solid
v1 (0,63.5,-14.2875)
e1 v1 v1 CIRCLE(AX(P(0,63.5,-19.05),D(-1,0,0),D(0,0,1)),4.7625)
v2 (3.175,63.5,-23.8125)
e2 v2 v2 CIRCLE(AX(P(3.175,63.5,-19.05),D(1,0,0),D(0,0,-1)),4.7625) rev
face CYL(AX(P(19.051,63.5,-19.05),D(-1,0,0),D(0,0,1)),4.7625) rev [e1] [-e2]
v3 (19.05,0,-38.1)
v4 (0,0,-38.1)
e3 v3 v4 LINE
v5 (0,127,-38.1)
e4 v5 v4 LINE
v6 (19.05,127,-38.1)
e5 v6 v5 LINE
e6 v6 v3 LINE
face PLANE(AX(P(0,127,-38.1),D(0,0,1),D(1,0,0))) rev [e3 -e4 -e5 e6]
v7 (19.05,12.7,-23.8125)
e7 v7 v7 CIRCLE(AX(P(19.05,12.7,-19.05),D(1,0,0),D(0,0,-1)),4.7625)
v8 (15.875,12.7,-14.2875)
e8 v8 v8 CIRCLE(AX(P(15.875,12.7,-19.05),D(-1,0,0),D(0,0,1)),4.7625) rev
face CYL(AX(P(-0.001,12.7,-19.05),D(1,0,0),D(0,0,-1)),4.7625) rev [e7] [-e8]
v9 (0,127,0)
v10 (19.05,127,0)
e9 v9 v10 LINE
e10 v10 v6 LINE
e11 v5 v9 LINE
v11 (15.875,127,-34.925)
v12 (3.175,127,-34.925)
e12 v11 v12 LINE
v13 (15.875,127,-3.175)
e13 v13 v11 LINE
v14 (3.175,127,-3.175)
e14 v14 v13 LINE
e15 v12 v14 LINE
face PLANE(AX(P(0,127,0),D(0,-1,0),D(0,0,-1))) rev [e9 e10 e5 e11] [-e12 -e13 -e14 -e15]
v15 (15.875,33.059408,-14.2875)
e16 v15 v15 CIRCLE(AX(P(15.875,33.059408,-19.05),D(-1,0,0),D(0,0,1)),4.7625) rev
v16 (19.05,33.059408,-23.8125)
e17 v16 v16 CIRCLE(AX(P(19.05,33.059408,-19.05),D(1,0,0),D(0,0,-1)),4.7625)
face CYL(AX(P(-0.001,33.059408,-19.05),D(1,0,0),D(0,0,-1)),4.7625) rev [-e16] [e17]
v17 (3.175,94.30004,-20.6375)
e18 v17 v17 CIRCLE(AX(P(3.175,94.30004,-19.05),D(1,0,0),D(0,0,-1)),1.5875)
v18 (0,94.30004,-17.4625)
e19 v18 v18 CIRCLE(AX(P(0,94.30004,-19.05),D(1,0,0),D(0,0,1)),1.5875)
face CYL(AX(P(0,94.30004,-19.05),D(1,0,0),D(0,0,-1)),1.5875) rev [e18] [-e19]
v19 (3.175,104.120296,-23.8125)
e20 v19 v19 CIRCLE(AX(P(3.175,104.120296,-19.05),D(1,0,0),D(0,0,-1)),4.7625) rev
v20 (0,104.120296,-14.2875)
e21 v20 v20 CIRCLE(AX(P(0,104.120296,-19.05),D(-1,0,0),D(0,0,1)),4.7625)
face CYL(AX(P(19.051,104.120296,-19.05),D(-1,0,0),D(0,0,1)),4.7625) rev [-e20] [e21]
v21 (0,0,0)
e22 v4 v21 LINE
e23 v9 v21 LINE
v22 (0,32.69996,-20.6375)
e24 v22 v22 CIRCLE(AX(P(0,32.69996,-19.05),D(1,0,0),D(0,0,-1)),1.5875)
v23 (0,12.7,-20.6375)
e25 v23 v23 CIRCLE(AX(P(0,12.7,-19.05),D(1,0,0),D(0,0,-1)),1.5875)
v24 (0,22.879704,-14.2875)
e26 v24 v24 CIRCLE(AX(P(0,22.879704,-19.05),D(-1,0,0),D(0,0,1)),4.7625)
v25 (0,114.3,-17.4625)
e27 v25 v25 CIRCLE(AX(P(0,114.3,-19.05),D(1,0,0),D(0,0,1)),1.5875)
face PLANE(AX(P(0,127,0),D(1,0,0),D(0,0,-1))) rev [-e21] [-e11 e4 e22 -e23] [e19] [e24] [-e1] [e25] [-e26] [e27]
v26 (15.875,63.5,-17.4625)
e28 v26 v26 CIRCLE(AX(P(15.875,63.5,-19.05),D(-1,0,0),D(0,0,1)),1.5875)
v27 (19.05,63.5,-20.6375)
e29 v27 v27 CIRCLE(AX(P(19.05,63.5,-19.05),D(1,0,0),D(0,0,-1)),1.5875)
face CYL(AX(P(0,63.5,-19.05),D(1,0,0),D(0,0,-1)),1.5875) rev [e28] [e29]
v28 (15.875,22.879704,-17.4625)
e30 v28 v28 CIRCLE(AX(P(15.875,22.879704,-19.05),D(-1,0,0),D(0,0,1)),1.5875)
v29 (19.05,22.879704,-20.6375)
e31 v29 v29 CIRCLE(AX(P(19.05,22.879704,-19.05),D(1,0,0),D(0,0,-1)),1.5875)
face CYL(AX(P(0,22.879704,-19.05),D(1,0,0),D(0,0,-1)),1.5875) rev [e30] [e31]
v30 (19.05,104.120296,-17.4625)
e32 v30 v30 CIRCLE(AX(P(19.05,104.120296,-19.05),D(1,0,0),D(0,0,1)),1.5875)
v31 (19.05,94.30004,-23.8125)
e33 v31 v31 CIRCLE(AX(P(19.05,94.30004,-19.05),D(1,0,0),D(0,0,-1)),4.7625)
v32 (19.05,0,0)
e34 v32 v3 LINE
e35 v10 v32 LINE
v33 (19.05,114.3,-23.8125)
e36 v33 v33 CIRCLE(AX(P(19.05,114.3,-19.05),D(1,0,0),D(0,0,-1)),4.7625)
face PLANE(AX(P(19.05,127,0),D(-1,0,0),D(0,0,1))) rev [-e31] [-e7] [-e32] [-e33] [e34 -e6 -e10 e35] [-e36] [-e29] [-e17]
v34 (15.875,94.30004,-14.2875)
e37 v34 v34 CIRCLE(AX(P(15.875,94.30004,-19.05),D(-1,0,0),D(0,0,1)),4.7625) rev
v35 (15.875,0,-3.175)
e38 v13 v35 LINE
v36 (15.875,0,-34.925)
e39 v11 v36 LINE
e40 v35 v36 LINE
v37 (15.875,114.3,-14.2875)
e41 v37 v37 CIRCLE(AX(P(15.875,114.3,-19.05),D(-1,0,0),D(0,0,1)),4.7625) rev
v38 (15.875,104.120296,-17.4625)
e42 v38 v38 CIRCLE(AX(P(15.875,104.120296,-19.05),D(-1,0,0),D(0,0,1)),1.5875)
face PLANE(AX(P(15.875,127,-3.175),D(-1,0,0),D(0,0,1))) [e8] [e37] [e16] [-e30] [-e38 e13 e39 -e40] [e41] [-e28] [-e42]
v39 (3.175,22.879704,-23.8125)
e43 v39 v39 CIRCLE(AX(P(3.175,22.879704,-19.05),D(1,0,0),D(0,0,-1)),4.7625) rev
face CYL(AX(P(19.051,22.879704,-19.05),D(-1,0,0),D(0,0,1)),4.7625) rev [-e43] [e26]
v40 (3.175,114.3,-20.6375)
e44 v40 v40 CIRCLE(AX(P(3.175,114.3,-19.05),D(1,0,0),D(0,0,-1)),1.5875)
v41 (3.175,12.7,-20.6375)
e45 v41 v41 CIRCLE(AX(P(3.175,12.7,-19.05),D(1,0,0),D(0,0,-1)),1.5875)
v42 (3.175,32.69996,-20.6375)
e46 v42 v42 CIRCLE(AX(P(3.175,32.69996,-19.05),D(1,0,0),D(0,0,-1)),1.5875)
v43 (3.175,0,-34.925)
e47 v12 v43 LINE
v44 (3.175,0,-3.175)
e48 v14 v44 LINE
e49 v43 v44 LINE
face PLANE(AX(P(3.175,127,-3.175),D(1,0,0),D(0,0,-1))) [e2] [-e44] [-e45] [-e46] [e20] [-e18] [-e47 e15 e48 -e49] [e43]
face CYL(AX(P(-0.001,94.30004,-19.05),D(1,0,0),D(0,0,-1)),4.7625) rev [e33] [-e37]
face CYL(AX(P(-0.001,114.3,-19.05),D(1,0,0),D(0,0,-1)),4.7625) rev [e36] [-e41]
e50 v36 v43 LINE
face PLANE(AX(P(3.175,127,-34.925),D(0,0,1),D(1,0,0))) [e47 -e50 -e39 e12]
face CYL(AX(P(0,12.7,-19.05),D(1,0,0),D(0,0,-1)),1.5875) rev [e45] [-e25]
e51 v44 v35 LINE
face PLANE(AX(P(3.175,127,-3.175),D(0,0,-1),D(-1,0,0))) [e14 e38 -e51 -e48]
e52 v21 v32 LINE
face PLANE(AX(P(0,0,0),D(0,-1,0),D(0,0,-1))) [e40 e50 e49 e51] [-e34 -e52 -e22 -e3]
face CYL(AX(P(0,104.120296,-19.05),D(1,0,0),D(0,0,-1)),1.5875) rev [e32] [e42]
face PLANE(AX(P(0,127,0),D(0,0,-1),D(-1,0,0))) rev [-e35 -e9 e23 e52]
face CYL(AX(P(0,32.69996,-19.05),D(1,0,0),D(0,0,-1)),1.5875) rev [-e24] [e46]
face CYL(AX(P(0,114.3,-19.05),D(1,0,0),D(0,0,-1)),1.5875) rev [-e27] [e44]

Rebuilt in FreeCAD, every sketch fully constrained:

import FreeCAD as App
import Part
import Sketcher
Q = App.Units.Quantity

doc = App.newDocument("Part")
params = doc.addObject("Spreadsheet::Sheet", "Params")
for row, (alias, value) in enumerate([
    ("sketch1_width", "0.5 in"),
    ("sketch1_height", "1.5 in"),
    ("sketch1_width2", "0.75 in"),
    ("sketch1_height2", "1.25 in"),
    ("pad1_length", "5 in"),
    ("sketch2_diameter", "0.125 in"),
    ("sketch3_diameter", "0.375 in"),
    ("pocket2_length", "0.125 in"),
    ("sketch4_diameter", "0.375 in"),
    ("pocket3_length", "0.125 in"),
    ("sketch5_diameter", "0.375 in"),
    ("pocket4_length", "0.125 in"),
    ("sketch6_diameter", "0.375 in"),
    ("pocket5_length", "0.125 in"),
    ("sketch7_diameter", "0.125 in"),
    ("sketch8_diameter", "0.375 in"),
    ("pocket7_length", "0.125 in"),
    ("sketch9_diameter", "0.375 in"),
    ("pocket8_length", "0.125 in"),
    ("sketch10_diameter", "0.375 in"),
    ("pocket9_length", "0.125 in"),
], start=1):
    params.set(f"A{row}", alias)
    params.set(f"B{row}", "=" + value)
    params.setAlias(f"B{row}", alias)

body = doc.addObject("PartDesign::Body", "Body")

# Sketch on XZ plane
sketch1 = body.newObject("Sketcher::SketchObject", "Sketch")
sketch1.AttachmentSupport = (doc.getObject("XZ_Plane"), [""])
sketch1.MapMode = "FlatFace"
sketch1.addGeometry([
    Part.LineSegment(App.Vector(0, -38, 0), App.Vector(0, 0, 0)),  # 0
    Part.LineSegment(App.Vector(0, 0, 0), App.Vector(19, 0, 0)),  # 1
    Part.LineSegment(App.Vector(19, 0, 0), App.Vector(19, -38, 0)),  # 2
    Part.LineSegment(App.Vector(19, -38, 0), App.Vector(0, -38, 0)),  # 3
    Part.LineSegment(App.Vector(16, -3, 0), App.Vector(3, -3, 0)),  # 4
    Part.LineSegment(App.Vector(3, -3, 0), App.Vector(3, -35, 0)),  # 5
    Part.LineSegment(App.Vector(3, -35, 0), App.Vector(16, -35, 0)),  # 6
    Part.LineSegment(App.Vector(16, -35, 0), App.Vector(16, -3, 0)),  # 7
], False)
sketch1.addConstraint([
    Sketcher.Constraint("Coincident", 0, 2, 1, 1),
    Sketcher.Constraint("Coincident", 1, 2, 2, 1),
    Sketcher.Constraint("Coincident", 2, 2, 3, 1),
    Sketcher.Constraint("Coincident", 3, 2, 0, 1),
    Sketcher.Constraint("Coincident", 4, 2, 5, 1),
    Sketcher.Constraint("Coincident", 5, 2, 6, 1),
    Sketcher.Constraint("Coincident", 6, 2, 7, 1),
    Sketcher.Constraint("Coincident", 7, 2, 4, 1),
    Sketcher.Constraint("Vertical", 0),
    Sketcher.Constraint("Horizontal", 1),
    Sketcher.Constraint("Vertical", 2),
    Sketcher.Constraint("Horizontal", 3),
    Sketcher.Constraint("Horizontal", 4),
    Sketcher.Constraint("Vertical", 5),
    Sketcher.Constraint("Horizontal", 6),
    Sketcher.Constraint("Vertical", 7),
    Sketcher.Constraint("Coincident", 0, 2, -1, 1),
    Sketcher.Constraint("DistanceX", 4, 2, 4, 1, Q("0.5 in")),
    Sketcher.Constraint("DistanceY", 0, 1, 0, 2, Q("1.5 in")),
    Sketcher.Constraint("DistanceX", 1, 1, 1, 2, Q("0.75 in")),
    Sketcher.Constraint("DistanceY", 5, 2, 5, 1, Q("1.25 in")),
    Sketcher.Constraint("DistanceX", -1, 1, 4, 2, Q("0.125 in")),
    Sketcher.Constraint("DistanceY", 4, 2, -1, 1, Q("0.125 in")),
])
sketch1.setExpression("Constraints[17]", "Params.sketch1_width")
sketch1.setExpression("Constraints[18]", "Params.sketch1_height")
sketch1.setExpression("Constraints[19]", "Params.sketch1_width2")
sketch1.setExpression("Constraints[20]", "Params.sketch1_height2")
pad1 = body.newObject("PartDesign::Pad", "Pad")
pad1.Profile = sketch1
pad1.setExpression("Length", "Params.pad1_length")
pad1.Reversed = True

# Sketch on YZ plane
sketch2 = body.newObject("Sketcher::SketchObject", "Sketch001")
sketch2.AttachmentSupport = (doc.getObject("YZ_Plane"), [""])
sketch2.MapMode = "FlatFace"
sketch2.AttachmentOffset = App.Placement(App.Vector(0, 0, 0.75 * 25.4), App.Rotation())
sketch2.addGeometry([
    Part.Circle(App.Vector(12.7, -19.1, 0), App.Vector(0, 0, 1), 1.6),
    Part.Circle(App.Vector(32.7, -19.1, 0), App.Vector(0, 0, 1), 1.6),
    Part.Circle(App.Vector(94.3, -19.1, 0), App.Vector(0, 0, 1), 1.6),
    Part.Circle(App.Vector(114.3, -19.1, 0), App.Vector(0, 0, 1), 1.6),
], False)
sketch2.addConstraint([
    Sketcher.Constraint("Equal", 0, 1),
    Sketcher.Constraint("Equal", 1, 2),
    Sketcher.Constraint("Equal", 2, 3),
    Sketcher.Constraint("Horizontal", 0, 3, 1, 3),
    Sketcher.Constraint("Horizontal", 1, 3, 2, 3),
    Sketcher.Constraint("Horizontal", 2, 3, 3, 3),
    Sketcher.Constraint("Diameter", 0, Q("0.125 in")),
    Sketcher.Constraint("DistanceX", 0, 3, 3, 3, Q("4 in")),
    Sketcher.Constraint("DistanceX", -1, 1, 0, 3, Q("0.5 in")),
    Sketcher.Constraint("DistanceY", 0, 3, -1, 1, Q("0.75 in")),
    Sketcher.Constraint("DistanceX", -1, 1, 1, 3, Q("1.2874 in")),
    Sketcher.Constraint("DistanceX", -1, 1, 2, 3, Q("3.7126 in")),
])
sketch2.setExpression("Constraints[6]", "Params.sketch2_diameter")
pocket1 = body.newObject("PartDesign::Pocket", "Pocket")
pocket1.Profile = sketch2
pocket1.Type = "ThroughAll"

# Sketch on YZ plane
sketch3 = body.newObject("Sketcher::SketchObject", "Sketch002")
sketch3.AttachmentSupport = (doc.getObject("YZ_Plane"), [""])
sketch3.MapMode = "FlatFace"
sketch3.AttachmentOffset = App.Placement(App.Vector(0, 0, 0.75 * 25.4), App.Rotation())
sketch3.addGeometry(Part.Circle(App.Vector(114.3, -19.1, 0), App.Vector(0, 0, 1), 4.8), False)
sketch3.addConstraint([
    Sketcher.Constraint("Diameter", 0, Q("0.375 in")),
    Sketcher.Constraint("DistanceX", -1, 1, 0, 3, Q("4.5 in")),
    Sketcher.Constraint("DistanceY", 0, 3, -1, 1, Q("0.75 in")),
])
sketch3.setExpression("Constraints[0]", "Params.sketch3_diameter")
pocket2 = body.newObject("PartDesign::Pocket", "Pocket001")
pocket2.Profile = sketch3
pocket2.setExpression("Length", "Params.pocket2_length")

# Sketch on YZ plane
sketch4 = body.newObject("Sketcher::SketchObject", "Sketch003")
sketch4.AttachmentSupport = (doc.getObject("YZ_Plane"), [""])
sketch4.MapMode = "FlatFace"
sketch4.AttachmentOffset = App.Placement(App.Vector(0, 0, 0.75 * 25.4), App.Rotation())
sketch4.addGeometry(Part.Circle(App.Vector(94.3, -19.1, 0), App.Vector(0, 0, 1), 4.8), False)
sketch4.addConstraint([
    Sketcher.Constraint("Diameter", 0, Q("0.375 in")),
    Sketcher.Constraint("DistanceY", 0, 3, -1, 1, Q("0.75 in")),
    Sketcher.Constraint("DistanceX", -1, 1, 0, 3, Q("3.7126 in")),
])
sketch4.setExpression("Constraints[0]", "Params.sketch4_diameter")
pocket3 = body.newObject("PartDesign::Pocket", "Pocket002")
pocket3.Profile = sketch4
pocket3.setExpression("Length", "Params.pocket3_length")

# Sketch on YZ plane
sketch5 = body.newObject("Sketcher::SketchObject", "Sketch004")
sketch5.AttachmentSupport = (doc.getObject("YZ_Plane"), [""])
sketch5.MapMode = "FlatFace"
sketch5.AttachmentOffset = App.Placement(App.Vector(0, 0, 0.75 * 25.4), App.Rotation())
sketch5.addGeometry(Part.Circle(App.Vector(33.1, -19.1, 0), App.Vector(0, 0, 1), 4.8), False)
sketch5.addConstraint([
    Sketcher.Constraint("Diameter", 0, Q("0.375 in")),
    Sketcher.Constraint("DistanceY", 0, 3, -1, 1, Q("0.75 in")),
    Sketcher.Constraint("DistanceX", -1, 1, 0, 3, 33.059408),
])
sketch5.setExpression("Constraints[0]", "Params.sketch5_diameter")
pocket4 = body.newObject("PartDesign::Pocket", "Pocket003")
pocket4.Profile = sketch5
pocket4.setExpression("Length", "Params.pocket4_length")

# Sketch on YZ plane
sketch6 = body.newObject("Sketcher::SketchObject", "Sketch005")
sketch6.AttachmentSupport = (doc.getObject("YZ_Plane"), [""])
sketch6.MapMode = "FlatFace"
sketch6.AttachmentOffset = App.Placement(App.Vector(0, 0, 0.75 * 25.4), App.Rotation())
sketch6.addGeometry(Part.Circle(App.Vector(12.7, -19.1, 0), App.Vector(0, 0, 1), 4.8), False)
sketch6.addConstraint([
    Sketcher.Constraint("Diameter", 0, Q("0.375 in")),
    Sketcher.Constraint("DistanceX", -1, 1, 0, 3, Q("0.5 in")),
    Sketcher.Constraint("DistanceY", 0, 3, -1, 1, Q("0.75 in")),
])
sketch6.setExpression("Constraints[0]", "Params.sketch6_diameter")
pocket5 = body.newObject("PartDesign::Pocket", "Pocket004")
pocket5.Profile = sketch6
pocket5.setExpression("Length", "Params.pocket5_length")

# Sketch on YZ plane
sketch7 = body.newObject("Sketcher::SketchObject", "Sketch006")
sketch7.AttachmentSupport = (doc.getObject("YZ_Plane"), [""])
sketch7.MapMode = "FlatFace"
sketch7.AttachmentOffset = App.Placement(App.Vector(0, 0, 0.75 * 25.4), App.Rotation())
sketch7.addGeometry([
    Part.Circle(App.Vector(22.9, -19.1, 0), App.Vector(0, 0, 1), 1.6),
    Part.Circle(App.Vector(63.5, -19.1, 0), App.Vector(0, 0, 1), 1.6),
    Part.Circle(App.Vector(104.1, -19.1, 0), App.Vector(0, 0, 1), 1.6),
], False)
sketch7.addConstraint([
    Sketcher.Constraint("Equal", 0, 1),
    Sketcher.Constraint("Equal", 1, 2),
    Sketcher.Constraint("Horizontal", 0, 3, 1, 3),
    Sketcher.Constraint("Horizontal", 1, 3, 2, 3),
    Sketcher.Constraint("Diameter", 0, Q("0.125 in")),
    Sketcher.Constraint("DistanceX", -1, 1, 1, 3, Q("2.5 in")),
    Sketcher.Constraint("DistanceY", 0, 3, -1, 1, Q("0.75 in")),
    Sketcher.Constraint("DistanceX", 0, 3, 2, 3, 81.240592),
    Sketcher.Constraint("DistanceX", -1, 1, 0, 3, 22.879704),
])
sketch7.setExpression("Constraints[4]", "Params.sketch7_diameter")
pocket6 = body.newObject("PartDesign::Pocket", "Pocket005")
pocket6.Profile = sketch7
pocket6.Type = "ThroughAll"

# Sketch on YZ plane
sketch8 = body.newObject("Sketcher::SketchObject", "Sketch007")
sketch8.AttachmentSupport = (doc.getObject("YZ_Plane"), [""])
sketch8.MapMode = "FlatFace"
sketch8.addGeometry(Part.Circle(App.Vector(104.1, -19.1, 0), App.Vector(0, 0, 1), 4.8), False)
sketch8.addConstraint([
    Sketcher.Constraint("Diameter", 0, Q("0.375 in")),
    Sketcher.Constraint("DistanceY", 0, 3, -1, 1, Q("0.75 in")),
    Sketcher.Constraint("DistanceX", -1, 1, 0, 3, 104.120296),
])
sketch8.setExpression("Constraints[0]", "Params.sketch8_diameter")
pocket7 = body.newObject("PartDesign::Pocket", "Pocket006")
pocket7.Profile = sketch8
pocket7.setExpression("Length", "Params.pocket7_length")
pocket7.Reversed = True

# Sketch on YZ plane
sketch9 = body.newObject("Sketcher::SketchObject", "Sketch008")
sketch9.AttachmentSupport = (doc.getObject("YZ_Plane"), [""])
sketch9.MapMode = "FlatFace"
sketch9.addGeometry(Part.Circle(App.Vector(63.5, -19.1, 0), App.Vector(0, 0, 1), 4.8), False)
sketch9.addConstraint([
    Sketcher.Constraint("Diameter", 0, Q("0.375 in")),
    Sketcher.Constraint("DistanceX", -1, 1, 0, 3, Q("2.5 in")),
    Sketcher.Constraint("DistanceY", 0, 3, -1, 1, Q("0.75 in")),
])
sketch9.setExpression("Constraints[0]", "Params.sketch9_diameter")
pocket8 = body.newObject("PartDesign::Pocket", "Pocket007")
pocket8.Profile = sketch9
pocket8.setExpression("Length", "Params.pocket8_length")
pocket8.Reversed = True

# Sketch on YZ plane
sketch10 = body.newObject("Sketcher::SketchObject", "Sketch009")
sketch10.AttachmentSupport = (doc.getObject("YZ_Plane"), [""])
sketch10.MapMode = "FlatFace"
sketch10.addGeometry(Part.Circle(App.Vector(22.9, -19.1, 0), App.Vector(0, 0, 1), 4.8), False)
sketch10.addConstraint([
    Sketcher.Constraint("Diameter", 0, Q("0.375 in")),
    Sketcher.Constraint("DistanceY", 0, 3, -1, 1, Q("0.75 in")),
    Sketcher.Constraint("DistanceX", -1, 1, 0, 3, 22.879704),
])
sketch10.setExpression("Constraints[0]", "Params.sketch10_diameter")
pocket9 = body.newObject("PartDesign::Pocket", "Pocket008")
pocket9.Profile = sketch10
pocket9.setExpression("Length", "Params.pocket9_length")
pocket9.Reversed = True

doc.recompute()
